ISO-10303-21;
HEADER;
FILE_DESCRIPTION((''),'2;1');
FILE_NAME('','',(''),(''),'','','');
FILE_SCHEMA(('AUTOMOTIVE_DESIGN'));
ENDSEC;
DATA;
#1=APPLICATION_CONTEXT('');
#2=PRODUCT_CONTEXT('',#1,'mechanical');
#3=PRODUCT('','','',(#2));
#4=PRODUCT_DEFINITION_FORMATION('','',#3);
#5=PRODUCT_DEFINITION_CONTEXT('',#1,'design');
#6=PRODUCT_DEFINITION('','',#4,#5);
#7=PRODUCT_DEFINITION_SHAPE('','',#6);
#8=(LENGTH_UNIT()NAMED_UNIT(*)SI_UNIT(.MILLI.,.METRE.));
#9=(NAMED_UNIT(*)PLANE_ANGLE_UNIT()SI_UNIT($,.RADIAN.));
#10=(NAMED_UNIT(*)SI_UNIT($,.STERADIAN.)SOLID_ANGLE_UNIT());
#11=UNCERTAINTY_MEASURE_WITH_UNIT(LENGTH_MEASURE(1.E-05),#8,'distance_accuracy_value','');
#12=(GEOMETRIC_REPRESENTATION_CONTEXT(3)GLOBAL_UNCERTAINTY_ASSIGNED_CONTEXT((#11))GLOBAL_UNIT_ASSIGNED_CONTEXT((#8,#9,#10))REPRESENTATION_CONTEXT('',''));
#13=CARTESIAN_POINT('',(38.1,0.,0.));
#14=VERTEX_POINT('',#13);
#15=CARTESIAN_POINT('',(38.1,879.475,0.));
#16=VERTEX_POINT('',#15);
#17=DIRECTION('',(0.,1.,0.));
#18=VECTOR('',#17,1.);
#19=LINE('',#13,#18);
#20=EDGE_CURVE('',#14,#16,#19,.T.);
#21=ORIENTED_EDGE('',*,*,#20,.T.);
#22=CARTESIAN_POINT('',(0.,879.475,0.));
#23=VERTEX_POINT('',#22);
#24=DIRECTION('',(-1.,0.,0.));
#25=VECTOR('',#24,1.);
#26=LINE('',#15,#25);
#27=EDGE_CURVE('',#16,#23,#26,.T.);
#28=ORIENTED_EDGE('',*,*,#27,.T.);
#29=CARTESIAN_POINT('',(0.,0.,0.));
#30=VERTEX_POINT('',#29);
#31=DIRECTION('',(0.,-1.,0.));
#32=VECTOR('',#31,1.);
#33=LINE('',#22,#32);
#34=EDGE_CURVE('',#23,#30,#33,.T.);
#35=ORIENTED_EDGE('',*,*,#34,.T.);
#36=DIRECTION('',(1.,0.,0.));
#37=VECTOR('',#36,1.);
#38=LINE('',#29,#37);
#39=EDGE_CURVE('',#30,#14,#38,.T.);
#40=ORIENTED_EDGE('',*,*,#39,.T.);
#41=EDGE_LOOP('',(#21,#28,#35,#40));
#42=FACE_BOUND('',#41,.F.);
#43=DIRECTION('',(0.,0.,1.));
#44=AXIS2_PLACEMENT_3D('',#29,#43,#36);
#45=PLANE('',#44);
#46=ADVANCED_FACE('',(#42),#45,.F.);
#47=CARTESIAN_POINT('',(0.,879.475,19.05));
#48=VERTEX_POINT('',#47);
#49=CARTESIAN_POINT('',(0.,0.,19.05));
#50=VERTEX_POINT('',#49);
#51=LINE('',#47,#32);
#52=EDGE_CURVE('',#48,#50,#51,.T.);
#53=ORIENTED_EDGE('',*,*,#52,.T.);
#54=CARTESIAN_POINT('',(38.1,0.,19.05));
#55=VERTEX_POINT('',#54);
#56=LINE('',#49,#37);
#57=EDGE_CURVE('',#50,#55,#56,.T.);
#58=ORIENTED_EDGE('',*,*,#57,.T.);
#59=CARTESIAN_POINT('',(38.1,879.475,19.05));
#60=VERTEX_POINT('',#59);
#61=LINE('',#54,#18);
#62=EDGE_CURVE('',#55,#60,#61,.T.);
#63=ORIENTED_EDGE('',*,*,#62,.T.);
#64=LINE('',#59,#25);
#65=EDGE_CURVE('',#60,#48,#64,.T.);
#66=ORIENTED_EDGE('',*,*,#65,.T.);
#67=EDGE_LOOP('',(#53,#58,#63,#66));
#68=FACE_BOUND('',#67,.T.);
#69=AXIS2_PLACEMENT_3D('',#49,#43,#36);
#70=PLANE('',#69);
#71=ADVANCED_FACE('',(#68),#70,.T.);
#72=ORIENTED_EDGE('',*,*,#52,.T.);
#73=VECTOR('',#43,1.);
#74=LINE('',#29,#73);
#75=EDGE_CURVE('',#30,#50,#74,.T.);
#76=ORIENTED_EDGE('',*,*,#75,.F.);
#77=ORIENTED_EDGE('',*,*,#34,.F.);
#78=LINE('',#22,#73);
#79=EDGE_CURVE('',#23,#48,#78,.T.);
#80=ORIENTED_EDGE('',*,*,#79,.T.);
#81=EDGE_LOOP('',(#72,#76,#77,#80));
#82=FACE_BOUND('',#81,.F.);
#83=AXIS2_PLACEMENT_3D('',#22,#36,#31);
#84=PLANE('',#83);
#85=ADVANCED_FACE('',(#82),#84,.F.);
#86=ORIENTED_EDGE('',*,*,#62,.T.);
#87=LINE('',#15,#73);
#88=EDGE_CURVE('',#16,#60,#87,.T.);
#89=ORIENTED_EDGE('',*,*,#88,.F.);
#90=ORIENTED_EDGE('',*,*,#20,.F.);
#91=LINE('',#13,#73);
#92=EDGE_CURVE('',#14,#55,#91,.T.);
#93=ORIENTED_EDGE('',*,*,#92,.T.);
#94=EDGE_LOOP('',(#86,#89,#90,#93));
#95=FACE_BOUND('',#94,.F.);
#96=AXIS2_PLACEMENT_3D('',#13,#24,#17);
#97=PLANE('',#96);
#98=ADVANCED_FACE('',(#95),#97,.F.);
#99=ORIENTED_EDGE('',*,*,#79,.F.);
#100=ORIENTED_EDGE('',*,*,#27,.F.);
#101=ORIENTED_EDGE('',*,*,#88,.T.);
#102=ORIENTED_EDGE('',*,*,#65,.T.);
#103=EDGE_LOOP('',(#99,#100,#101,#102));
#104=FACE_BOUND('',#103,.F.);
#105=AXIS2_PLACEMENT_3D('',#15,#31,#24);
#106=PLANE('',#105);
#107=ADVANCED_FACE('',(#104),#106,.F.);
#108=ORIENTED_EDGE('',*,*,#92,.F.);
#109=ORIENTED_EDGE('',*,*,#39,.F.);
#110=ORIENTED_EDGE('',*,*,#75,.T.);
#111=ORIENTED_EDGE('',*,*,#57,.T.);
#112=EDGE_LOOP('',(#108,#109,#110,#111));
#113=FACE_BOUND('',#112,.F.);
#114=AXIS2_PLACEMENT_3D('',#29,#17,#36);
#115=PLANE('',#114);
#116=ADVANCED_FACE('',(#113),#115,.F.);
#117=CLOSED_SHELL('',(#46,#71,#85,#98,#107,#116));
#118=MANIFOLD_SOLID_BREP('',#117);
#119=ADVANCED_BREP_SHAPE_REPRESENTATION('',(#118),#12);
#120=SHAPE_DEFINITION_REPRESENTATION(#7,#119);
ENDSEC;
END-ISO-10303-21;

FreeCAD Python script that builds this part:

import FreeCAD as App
import Part
import Sketcher
Q = App.Units.Quantity


def add_polygon(sketch, points):
    """Adds a closed chain of lines whose ends are joined by coincident constraints."""
    first, n = sketch.GeometryCount, len(points)
    for a, b in zip(points, points[1:] + points[:1]):
        sketch.addGeometry(Part.LineSegment(App.Vector(*a, 0), App.Vector(*b, 0)), False)
    for i in range(n):
        sketch.addConstraint(Sketcher.Constraint("Coincident", first + i, 2, first + (i + 1) % n, 1))

doc = App.newDocument("Part")
params = doc.addObject("Spreadsheet::Sheet", "Params")
for row, (alias, value) in enumerate([
    ("sketch1_width", "1.5 in"),
    ("sketch1_height", "34.625 in"),
    ("pad1_length", "0.75 in"),
], start=1):
    params.set(f"A{row}", alias)
    params.set(f"B{row}", "=" + value)
    params.setAlias(f"B{row}", alias)

body = doc.addObject("PartDesign::Body", "Body")

# Sketch on XY plane
sketch1 = doc.addObject("Sketcher::SketchObject", "Sketch")
body.addObject(sketch1)
sketch1.AttachmentSupport = (doc.XY_Plane, [""])
sketch1.MapMode = "FlatFace"
add_polygon(sketch1, [(0, 879.475), (0, 0), (38.1, 0), (38.1, 879.475)])  # lines 0-3
sketch1.addConstraint(Sketcher.Constraint("Vertical", 0))
sketch1.addConstraint(Sketcher.Constraint("Horizontal", 1))
sketch1.addConstraint(Sketcher.Constraint("Vertical", 2))
sketch1.addConstraint(Sketcher.Constraint("Horizontal", 3))
sketch1.addConstraint(Sketcher.Constraint("Coincident", 0, 2, -1, 1))
sketch1.addConstraint(Sketcher.Constraint("DistanceX", 1, 1, 1, 2, Q("1.5 in")))
sketch1.addConstraint(Sketcher.Constraint("DistanceY", 0, 2, 0, 1, Q("34.625 in")))
sketch1.setExpression("Constraints[9]", "Params.sketch1_width")
sketch1.setExpression("Constraints[10]", "Params.sketch1_height")
pad1 = doc.addObject("PartDesign::Pad", "Pad")
body.addObject(pad1)
pad1.Profile = sketch1
pad1.setExpression("Length", "Params.pad1_length")

doc.recompute()
